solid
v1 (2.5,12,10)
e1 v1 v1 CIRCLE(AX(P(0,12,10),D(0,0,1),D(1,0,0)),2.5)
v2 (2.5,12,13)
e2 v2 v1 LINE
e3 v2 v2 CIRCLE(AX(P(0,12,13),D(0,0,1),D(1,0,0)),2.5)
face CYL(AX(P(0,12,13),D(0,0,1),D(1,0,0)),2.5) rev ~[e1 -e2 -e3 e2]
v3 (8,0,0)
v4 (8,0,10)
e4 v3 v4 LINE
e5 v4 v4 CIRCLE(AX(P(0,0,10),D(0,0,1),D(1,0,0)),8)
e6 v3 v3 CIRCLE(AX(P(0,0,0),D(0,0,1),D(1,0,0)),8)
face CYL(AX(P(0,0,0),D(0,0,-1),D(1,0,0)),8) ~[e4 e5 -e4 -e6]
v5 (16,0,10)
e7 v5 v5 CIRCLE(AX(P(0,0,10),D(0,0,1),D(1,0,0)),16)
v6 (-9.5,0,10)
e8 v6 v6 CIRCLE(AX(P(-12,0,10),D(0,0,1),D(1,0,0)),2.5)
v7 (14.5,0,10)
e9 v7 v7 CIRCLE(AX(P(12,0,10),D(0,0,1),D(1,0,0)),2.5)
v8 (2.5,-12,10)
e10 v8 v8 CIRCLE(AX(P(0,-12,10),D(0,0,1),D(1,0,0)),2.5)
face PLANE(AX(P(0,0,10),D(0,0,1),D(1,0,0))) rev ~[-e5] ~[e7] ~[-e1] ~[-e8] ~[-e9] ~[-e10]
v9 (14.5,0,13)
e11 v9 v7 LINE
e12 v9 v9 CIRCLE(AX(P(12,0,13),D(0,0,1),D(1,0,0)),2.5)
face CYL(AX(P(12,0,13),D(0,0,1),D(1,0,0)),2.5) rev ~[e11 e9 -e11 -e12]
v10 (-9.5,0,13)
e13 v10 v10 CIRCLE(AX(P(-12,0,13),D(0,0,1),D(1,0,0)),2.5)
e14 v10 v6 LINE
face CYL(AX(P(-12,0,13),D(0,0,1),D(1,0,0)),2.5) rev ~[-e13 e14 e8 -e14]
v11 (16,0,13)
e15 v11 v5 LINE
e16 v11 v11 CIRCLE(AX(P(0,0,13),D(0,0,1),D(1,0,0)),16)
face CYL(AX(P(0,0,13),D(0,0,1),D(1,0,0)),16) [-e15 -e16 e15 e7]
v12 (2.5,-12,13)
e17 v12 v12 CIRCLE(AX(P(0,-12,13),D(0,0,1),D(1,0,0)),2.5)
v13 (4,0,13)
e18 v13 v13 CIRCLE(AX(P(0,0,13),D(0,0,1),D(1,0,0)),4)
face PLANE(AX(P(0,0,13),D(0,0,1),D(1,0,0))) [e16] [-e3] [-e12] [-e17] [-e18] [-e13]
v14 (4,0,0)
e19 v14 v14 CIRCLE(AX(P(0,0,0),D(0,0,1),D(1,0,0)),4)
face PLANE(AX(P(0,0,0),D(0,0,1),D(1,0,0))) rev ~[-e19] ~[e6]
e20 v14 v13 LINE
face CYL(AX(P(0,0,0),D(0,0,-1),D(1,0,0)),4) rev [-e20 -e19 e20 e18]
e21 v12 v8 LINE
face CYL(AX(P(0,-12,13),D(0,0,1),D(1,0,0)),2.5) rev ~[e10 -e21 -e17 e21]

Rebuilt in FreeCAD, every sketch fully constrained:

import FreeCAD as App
import Part
import Sketcher
from FreeCAD import Vector
Q = App.Units.Quantity

doc = App.newDocument("Part")
body = doc.addObject("PartDesign::Body", "Body")

# Sketch on XY plane
sketch1 = body.newObject("Sketcher::SketchObject", "Sketch")
sketch1.AttachmentSupport = (doc.getObject("XY_Plane"), [""])
sketch1.MapMode = "FlatFace"
sketch1.addGeometry(Part.Circle(Vector(0, 0, 0), Vector(0, 0, 1), 8), False)
sketch1.addGeometry(Part.Circle(Vector(0, 0, 0), Vector(0, 0, 1), 4), False)
sketch1.addConstraint(Sketcher.Constraint("Coincident", 0, 3, -1, 1))
sketch1.addConstraint(Sketcher.Constraint("Coincident", 1, 3, -1, 1))
sketch1.addConstraint(Sketcher.Constraint("Diameter", 0, Q("16 mm")))
sketch1.addConstraint(Sketcher.Constraint("Diameter", 1, Q("8 mm")))
pad1 = body.newObject("PartDesign::Pad", "Pad")
pad1.Profile = sketch1
pad1.Length = 13

# Sketch on XY plane
sketch2 = body.newObject("Sketcher::SketchObject", "Sketch001")
sketch2.AttachmentSupport = (doc.getObject("XY_Plane"), [""])
sketch2.MapMode = "FlatFace"
sketch2.AttachmentOffset = App.Placement(Vector(0, 0, 13), App.Rotation())
sketch2.addGeometry(Part.Circle(Vector(0, 0, 0), Vector(0, 0, 1), 16), False)
sketch2.addGeometry(Part.Circle(Vector(0, 0, 0), Vector(0, 0, 1), 8), False)
sketch2.addConstraint(Sketcher.Constraint("Coincident", 0, 3, -1, 1))
sketch2.addConstraint(Sketcher.Constraint("Coincident", 1, 3, -1, 1))
sketch2.addConstraint(Sketcher.Constraint("Diameter", 0, Q("32 mm")))
sketch2.addConstraint(Sketcher.Constraint("Diameter", 1, Q("16 mm")))
pad2 = body.newObject("PartDesign::Pad", "Pad001")
pad2.Profile = sketch2
pad2.Length = 3
pad2.Reversed = True

# Sketch on XY plane
sketch3 = body.newObject("Sketcher::SketchObject", "Sketch002")
sketch3.AttachmentSupport = (doc.getObject("XY_Plane"), [""])
sketch3.MapMode = "FlatFace"
sketch3.AttachmentOffset = App.Placement(Vector(0, 0, 13), App.Rotation())
sketch3.addGeometry(Part.Circle(Vector(12, 0, 0), Vector(0, 0, 1), 2.5), False)
sketch3.addGeometry(Part.Circle(Vector(0, 12, 0), Vector(0, 0, 1), 2.5), False)
sketch3.addGeometry(Part.Circle(Vector(-12, 0, 0), Vector(0, 0, 1), 2.5), False)
sketch3.addGeometry(Part.Circle(Vector(0, -12, 0), Vector(0, 0, 1), 2.5), False)
sketch3.addConstraint(Sketcher.Constraint("Equal", 0, 1))
sketch3.addConstraint(Sketcher.Constraint("Equal", 1, 2))
sketch3.addConstraint(Sketcher.Constraint("Equal", 2, 3))
sketch3.addConstraint(Sketcher.Constraint("Symmetric", 0, 3, 2, 3, -1, 1))
sketch3.addConstraint(Sketcher.Constraint("Symmetric", 1, 3, 3, 3, -1, 1))
sketch3.addConstraint(Sketcher.Constraint("PointOnObject", 0, 3, -1))
sketch3.addConstraint(Sketcher.Constraint("PointOnObject", 1, 3, -2))
sketch3.addConstraint(Sketcher.Constraint("Diameter", 0, Q("5 mm")))
sketch3.addConstraint(Sketcher.Constraint("DistanceX", -1, 1, 0, 3, Q("12 mm")))
sketch3.addConstraint(Sketcher.Constraint("DistanceY", -1, 1, 1, 3, Q("12 mm")))
pocket1 = body.newObject("PartDesign::Pocket", "Pocket")
pocket1.Profile = sketch3
pocket1.Type = "ThroughAll"

doc.recompute()
